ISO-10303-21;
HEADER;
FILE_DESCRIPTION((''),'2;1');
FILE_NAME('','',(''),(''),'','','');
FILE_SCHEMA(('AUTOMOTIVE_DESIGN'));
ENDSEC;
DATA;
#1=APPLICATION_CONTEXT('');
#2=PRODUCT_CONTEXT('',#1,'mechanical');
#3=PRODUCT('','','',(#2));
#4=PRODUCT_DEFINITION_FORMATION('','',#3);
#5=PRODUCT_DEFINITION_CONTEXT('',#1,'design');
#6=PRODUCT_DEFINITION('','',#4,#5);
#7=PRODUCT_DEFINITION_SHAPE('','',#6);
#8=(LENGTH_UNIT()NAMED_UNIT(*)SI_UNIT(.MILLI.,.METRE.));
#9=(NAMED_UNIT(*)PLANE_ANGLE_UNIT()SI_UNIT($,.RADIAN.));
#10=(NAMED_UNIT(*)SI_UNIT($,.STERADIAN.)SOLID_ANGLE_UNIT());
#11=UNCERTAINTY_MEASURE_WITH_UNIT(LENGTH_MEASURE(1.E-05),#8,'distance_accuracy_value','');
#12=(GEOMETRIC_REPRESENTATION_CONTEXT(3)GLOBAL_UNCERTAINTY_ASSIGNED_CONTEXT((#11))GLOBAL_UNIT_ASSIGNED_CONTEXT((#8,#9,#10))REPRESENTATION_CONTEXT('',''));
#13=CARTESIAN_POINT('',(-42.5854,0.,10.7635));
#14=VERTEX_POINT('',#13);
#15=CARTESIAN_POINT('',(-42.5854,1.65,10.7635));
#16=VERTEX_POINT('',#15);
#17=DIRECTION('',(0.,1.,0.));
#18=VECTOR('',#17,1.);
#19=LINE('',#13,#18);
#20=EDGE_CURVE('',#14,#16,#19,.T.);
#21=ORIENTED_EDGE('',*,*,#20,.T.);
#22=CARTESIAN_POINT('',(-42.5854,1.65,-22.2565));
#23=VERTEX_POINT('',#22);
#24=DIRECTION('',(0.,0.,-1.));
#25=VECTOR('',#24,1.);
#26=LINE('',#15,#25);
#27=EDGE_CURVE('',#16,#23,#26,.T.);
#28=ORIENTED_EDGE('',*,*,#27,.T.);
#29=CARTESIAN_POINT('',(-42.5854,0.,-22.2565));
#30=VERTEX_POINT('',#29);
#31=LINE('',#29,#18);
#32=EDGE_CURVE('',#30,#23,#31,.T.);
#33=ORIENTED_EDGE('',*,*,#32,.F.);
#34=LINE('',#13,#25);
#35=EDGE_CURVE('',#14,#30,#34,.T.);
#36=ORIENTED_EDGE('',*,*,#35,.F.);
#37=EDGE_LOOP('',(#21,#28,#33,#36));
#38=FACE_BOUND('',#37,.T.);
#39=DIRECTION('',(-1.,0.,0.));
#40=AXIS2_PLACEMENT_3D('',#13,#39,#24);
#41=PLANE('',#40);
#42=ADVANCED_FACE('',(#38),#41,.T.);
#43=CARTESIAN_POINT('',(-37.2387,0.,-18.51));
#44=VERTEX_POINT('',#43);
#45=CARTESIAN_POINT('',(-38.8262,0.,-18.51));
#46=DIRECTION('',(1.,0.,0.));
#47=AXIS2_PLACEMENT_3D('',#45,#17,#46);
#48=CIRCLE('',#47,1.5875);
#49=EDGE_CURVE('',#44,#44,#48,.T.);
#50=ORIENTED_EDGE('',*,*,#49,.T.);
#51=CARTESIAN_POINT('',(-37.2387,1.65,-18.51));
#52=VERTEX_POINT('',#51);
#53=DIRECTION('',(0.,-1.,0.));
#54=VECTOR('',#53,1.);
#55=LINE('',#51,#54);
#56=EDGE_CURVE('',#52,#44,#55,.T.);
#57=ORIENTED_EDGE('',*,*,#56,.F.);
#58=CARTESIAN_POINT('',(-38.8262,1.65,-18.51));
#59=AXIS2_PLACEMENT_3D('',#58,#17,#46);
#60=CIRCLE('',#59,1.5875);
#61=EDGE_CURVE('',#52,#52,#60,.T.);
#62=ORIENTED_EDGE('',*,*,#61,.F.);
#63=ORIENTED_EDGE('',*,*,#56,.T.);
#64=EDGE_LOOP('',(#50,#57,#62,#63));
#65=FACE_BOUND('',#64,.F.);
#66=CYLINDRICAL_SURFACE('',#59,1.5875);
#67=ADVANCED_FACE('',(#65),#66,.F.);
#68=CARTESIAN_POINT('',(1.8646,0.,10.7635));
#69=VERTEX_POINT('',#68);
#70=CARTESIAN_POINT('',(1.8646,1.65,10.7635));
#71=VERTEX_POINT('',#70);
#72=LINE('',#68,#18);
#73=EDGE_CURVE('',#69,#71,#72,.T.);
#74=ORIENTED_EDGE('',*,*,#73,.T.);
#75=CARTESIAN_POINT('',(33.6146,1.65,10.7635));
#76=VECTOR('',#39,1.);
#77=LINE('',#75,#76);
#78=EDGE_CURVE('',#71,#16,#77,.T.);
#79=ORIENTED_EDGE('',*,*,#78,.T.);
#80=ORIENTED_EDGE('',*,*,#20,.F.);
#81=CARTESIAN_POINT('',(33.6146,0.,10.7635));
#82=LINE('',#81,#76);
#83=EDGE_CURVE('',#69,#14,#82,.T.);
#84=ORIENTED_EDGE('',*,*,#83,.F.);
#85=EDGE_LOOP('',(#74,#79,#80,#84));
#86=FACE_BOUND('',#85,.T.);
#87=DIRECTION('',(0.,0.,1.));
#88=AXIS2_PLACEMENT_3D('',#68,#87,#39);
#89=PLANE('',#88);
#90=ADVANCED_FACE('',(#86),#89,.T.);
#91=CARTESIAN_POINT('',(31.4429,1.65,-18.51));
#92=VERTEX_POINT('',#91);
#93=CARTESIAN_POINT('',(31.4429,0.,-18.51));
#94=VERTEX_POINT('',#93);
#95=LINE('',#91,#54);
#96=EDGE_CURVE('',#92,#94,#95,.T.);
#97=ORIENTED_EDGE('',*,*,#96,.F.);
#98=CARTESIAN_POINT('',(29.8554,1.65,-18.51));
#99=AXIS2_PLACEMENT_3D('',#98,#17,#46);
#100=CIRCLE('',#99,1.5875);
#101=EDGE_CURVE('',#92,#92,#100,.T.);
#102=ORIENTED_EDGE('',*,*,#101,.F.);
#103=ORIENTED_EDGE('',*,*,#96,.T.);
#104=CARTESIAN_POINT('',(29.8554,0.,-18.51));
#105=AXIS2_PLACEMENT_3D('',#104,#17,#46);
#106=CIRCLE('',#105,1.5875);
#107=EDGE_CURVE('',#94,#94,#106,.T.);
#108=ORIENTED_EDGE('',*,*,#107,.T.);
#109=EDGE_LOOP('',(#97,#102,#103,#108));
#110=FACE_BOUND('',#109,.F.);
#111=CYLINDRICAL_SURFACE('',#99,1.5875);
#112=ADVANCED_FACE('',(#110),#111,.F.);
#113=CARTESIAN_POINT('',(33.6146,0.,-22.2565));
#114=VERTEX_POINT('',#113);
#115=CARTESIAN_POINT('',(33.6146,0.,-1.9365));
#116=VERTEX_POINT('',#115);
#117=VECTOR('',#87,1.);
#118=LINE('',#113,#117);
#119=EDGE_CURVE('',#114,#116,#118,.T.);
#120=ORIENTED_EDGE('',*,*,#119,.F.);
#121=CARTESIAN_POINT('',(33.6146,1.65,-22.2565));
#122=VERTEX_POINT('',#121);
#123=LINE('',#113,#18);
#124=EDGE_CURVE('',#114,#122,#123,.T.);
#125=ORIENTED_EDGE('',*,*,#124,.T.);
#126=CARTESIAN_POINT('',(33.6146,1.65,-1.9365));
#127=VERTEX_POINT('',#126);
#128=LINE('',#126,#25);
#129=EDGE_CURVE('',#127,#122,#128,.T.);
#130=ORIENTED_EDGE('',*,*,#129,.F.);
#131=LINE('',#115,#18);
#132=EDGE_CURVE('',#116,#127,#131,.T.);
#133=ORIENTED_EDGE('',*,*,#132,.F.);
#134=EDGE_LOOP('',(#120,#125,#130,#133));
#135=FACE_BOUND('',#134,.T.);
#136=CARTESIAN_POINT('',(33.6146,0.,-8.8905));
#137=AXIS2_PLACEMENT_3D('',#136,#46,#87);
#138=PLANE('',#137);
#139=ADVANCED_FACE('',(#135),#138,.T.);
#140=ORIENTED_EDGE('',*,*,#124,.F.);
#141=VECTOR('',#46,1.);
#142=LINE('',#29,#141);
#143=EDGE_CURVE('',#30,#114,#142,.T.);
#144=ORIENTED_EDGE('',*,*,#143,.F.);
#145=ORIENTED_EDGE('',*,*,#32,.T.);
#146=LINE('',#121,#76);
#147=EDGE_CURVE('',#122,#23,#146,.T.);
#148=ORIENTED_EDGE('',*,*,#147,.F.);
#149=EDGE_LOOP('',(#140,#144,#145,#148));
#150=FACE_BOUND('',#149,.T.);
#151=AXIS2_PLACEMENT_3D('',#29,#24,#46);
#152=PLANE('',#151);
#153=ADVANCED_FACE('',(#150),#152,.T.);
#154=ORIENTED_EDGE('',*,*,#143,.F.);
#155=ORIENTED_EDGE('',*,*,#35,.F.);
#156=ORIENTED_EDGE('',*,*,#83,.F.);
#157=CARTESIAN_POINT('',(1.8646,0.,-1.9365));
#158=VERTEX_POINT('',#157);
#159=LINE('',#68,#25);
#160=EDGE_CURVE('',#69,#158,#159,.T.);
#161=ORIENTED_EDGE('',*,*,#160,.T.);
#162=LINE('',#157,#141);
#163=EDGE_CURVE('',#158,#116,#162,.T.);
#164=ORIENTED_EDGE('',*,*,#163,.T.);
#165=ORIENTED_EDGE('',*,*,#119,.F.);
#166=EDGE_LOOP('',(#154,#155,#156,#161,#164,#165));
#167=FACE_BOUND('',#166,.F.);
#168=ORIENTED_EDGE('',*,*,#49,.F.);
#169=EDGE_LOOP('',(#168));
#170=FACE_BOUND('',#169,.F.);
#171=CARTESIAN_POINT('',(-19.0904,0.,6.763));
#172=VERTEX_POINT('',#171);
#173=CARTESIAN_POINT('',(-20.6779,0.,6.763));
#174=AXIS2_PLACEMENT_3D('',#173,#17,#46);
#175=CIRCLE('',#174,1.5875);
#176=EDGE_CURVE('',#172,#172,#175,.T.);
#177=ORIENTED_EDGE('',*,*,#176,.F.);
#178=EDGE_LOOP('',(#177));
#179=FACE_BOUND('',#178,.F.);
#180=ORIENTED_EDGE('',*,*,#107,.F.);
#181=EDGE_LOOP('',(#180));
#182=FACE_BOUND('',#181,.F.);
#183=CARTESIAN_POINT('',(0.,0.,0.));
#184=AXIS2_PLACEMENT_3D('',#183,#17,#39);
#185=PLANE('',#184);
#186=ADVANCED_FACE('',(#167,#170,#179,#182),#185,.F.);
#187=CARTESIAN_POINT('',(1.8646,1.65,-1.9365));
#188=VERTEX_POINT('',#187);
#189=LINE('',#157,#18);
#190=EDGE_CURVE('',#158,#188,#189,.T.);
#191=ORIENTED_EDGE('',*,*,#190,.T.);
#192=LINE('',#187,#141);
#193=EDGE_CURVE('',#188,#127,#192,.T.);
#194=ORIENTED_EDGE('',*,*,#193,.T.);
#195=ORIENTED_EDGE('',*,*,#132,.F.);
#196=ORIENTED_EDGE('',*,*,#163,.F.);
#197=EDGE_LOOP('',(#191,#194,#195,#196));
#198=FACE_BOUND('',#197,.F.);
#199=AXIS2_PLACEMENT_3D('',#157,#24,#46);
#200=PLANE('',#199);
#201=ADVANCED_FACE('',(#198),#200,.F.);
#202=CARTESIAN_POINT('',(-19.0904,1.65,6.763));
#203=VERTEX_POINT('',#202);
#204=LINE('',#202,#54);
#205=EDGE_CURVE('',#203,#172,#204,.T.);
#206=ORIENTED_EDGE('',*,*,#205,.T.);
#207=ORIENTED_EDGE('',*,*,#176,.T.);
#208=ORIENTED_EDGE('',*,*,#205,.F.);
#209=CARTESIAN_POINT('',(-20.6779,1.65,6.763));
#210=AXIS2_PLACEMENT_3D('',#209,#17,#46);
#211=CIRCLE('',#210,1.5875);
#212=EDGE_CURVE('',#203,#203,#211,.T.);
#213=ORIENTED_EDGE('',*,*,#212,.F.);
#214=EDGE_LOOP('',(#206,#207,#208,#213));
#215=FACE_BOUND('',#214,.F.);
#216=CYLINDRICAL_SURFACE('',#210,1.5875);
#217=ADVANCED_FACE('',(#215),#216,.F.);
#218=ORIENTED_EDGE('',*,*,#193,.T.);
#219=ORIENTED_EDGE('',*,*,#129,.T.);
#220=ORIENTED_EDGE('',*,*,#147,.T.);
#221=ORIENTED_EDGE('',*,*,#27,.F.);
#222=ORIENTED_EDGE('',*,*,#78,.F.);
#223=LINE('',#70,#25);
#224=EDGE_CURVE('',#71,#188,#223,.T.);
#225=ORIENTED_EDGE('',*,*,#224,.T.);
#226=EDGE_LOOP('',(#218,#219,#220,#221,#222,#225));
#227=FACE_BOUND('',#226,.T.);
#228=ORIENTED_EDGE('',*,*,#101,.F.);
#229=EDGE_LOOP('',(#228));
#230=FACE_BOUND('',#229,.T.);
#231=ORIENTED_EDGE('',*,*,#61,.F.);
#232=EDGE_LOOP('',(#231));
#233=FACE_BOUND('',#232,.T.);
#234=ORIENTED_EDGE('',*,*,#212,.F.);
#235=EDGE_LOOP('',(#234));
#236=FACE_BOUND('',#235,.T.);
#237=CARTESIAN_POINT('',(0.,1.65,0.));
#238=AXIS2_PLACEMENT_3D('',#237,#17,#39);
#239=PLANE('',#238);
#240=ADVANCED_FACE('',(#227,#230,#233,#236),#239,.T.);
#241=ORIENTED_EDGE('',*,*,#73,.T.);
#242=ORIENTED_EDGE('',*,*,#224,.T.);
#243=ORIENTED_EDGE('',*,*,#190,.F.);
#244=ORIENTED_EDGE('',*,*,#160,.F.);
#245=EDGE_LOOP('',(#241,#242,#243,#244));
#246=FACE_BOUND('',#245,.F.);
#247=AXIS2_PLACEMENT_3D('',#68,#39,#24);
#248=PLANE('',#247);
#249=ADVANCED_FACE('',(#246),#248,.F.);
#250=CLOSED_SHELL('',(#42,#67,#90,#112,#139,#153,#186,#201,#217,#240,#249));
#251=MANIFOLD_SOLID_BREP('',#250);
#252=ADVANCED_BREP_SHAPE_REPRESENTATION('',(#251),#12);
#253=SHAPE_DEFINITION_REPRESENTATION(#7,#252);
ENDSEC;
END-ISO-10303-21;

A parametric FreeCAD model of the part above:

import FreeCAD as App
import Part
import Sketcher
from FreeCAD import Vector
Q = App.Units.Quantity


def add_polygon(sketch, points):
    """Adds a closed chain of lines whose ends are joined by coincident constraints."""
    first, n = sketch.GeometryCount, len(points)
    for a, b in zip(points, points[1:] + points[:1]):
        sketch.addGeometry(Part.LineSegment(App.Vector(*a, 0), App.Vector(*b, 0)), False)
    for i in range(n):
        sketch.addConstraint(Sketcher.Constraint("Coincident", first + i, 2, first + (i + 1) % n, 1))

doc = App.newDocument("Part")
body = doc.addObject("PartDesign::Body", "Body")

sketch1 = doc.addObject("Sketcher::SketchObject", "Sketch")
body.addObject(sketch1)
sketch1.AttachmentSupport = (doc.XZ_Plane, [""])
sketch1.MapMode = "FlatFace"
add_polygon(sketch1, [(-43, 11), (2, 11), (2, -2), (34, -2), (34, -22), (-43, -22)])
sketch1.addConstraint([
    Sketcher.Constraint("Horizontal", 0),
    Sketcher.Constraint("Vertical", 1),
    Sketcher.Constraint("Horizontal", 2),
    Sketcher.Constraint("Vertical", 3),
    Sketcher.Constraint("Horizontal", 4),
    Sketcher.Constraint("Vertical", 5),
    Sketcher.Constraint("DistanceX", 4, 2, 4, 1, Q("3 in")),
    Sketcher.Constraint("DistanceY", 1, 2, 1, 1, Q("0.5 in")),
    Sketcher.Constraint("DistanceY", 5, 1, 5, 2, Q("1.3 in")),
    Sketcher.Constraint("DistanceX", 2, 1, 2, 2, Q("1.25 in")),
    Sketcher.Constraint("DistanceX", -1, 1, 0, 2, Q("0.0734 in")),
    Sketcher.Constraint("DistanceY", -1, 1, 0, 2, Q("10.7635 mm")),
])
pad1 = doc.addObject("PartDesign::Pad", "Pad")
body.addObject(pad1)
pad1.Profile = sketch1
pad1.Length = 1.65
pad1.Reversed = True

sketch2 = doc.addObject("Sketcher::SketchObject", "Sketch001")
body.addObject(sketch2)
sketch2.AttachmentSupport = (doc.XZ_Plane, [""])
sketch2.MapMode = "FlatFace"
sketch2.AttachmentOffset = App.Placement(Vector(0, 0, -1.65), App.Rotation())
sketch2.addGeometry([
    Part.Circle(Vector(-38.8, -18.5, 0), Vector(0, 0, 1), 1.6),
    Part.Circle(Vector(29.9, -18.5, 0), Vector(0, 0, 1), 1.6),
    Part.Circle(Vector(-20.7, 6.8, 0), Vector(0, 0, 1), 1.6),
], False)
sketch2.addConstraint([
    Sketcher.Constraint("Equal", 0, 1),
    Sketcher.Constraint("Equal", 1, 2),
    Sketcher.Constraint("Horizontal", 0, 3, 1, 3),
    Sketcher.Constraint("Diameter", 0, Q("0.125 in")),
    Sketcher.Constraint("DistanceX", 0, 3, 1, 3, Q("2.704 in")),
    Sketcher.Constraint("DistanceY", 0, 3, 2, 3, Q("0.995 in")),
    Sketcher.Constraint("DistanceX", 0, 3, -1, 1, Q("1.5286 in")),
    Sketcher.Constraint("DistanceX", 2, 3, -1, 1, Q("0.8141 in")),
    Sketcher.Constraint("DistanceY", 0, 3, -1, 1, Q("18.51 mm")),
])
pocket1 = doc.addObject("PartDesign::Pocket", "Pocket")
body.addObject(pocket1)
pocket1.Profile = sketch2
pocket1.Length = 7.53
pocket1.Reversed = True

doc.recompute()
